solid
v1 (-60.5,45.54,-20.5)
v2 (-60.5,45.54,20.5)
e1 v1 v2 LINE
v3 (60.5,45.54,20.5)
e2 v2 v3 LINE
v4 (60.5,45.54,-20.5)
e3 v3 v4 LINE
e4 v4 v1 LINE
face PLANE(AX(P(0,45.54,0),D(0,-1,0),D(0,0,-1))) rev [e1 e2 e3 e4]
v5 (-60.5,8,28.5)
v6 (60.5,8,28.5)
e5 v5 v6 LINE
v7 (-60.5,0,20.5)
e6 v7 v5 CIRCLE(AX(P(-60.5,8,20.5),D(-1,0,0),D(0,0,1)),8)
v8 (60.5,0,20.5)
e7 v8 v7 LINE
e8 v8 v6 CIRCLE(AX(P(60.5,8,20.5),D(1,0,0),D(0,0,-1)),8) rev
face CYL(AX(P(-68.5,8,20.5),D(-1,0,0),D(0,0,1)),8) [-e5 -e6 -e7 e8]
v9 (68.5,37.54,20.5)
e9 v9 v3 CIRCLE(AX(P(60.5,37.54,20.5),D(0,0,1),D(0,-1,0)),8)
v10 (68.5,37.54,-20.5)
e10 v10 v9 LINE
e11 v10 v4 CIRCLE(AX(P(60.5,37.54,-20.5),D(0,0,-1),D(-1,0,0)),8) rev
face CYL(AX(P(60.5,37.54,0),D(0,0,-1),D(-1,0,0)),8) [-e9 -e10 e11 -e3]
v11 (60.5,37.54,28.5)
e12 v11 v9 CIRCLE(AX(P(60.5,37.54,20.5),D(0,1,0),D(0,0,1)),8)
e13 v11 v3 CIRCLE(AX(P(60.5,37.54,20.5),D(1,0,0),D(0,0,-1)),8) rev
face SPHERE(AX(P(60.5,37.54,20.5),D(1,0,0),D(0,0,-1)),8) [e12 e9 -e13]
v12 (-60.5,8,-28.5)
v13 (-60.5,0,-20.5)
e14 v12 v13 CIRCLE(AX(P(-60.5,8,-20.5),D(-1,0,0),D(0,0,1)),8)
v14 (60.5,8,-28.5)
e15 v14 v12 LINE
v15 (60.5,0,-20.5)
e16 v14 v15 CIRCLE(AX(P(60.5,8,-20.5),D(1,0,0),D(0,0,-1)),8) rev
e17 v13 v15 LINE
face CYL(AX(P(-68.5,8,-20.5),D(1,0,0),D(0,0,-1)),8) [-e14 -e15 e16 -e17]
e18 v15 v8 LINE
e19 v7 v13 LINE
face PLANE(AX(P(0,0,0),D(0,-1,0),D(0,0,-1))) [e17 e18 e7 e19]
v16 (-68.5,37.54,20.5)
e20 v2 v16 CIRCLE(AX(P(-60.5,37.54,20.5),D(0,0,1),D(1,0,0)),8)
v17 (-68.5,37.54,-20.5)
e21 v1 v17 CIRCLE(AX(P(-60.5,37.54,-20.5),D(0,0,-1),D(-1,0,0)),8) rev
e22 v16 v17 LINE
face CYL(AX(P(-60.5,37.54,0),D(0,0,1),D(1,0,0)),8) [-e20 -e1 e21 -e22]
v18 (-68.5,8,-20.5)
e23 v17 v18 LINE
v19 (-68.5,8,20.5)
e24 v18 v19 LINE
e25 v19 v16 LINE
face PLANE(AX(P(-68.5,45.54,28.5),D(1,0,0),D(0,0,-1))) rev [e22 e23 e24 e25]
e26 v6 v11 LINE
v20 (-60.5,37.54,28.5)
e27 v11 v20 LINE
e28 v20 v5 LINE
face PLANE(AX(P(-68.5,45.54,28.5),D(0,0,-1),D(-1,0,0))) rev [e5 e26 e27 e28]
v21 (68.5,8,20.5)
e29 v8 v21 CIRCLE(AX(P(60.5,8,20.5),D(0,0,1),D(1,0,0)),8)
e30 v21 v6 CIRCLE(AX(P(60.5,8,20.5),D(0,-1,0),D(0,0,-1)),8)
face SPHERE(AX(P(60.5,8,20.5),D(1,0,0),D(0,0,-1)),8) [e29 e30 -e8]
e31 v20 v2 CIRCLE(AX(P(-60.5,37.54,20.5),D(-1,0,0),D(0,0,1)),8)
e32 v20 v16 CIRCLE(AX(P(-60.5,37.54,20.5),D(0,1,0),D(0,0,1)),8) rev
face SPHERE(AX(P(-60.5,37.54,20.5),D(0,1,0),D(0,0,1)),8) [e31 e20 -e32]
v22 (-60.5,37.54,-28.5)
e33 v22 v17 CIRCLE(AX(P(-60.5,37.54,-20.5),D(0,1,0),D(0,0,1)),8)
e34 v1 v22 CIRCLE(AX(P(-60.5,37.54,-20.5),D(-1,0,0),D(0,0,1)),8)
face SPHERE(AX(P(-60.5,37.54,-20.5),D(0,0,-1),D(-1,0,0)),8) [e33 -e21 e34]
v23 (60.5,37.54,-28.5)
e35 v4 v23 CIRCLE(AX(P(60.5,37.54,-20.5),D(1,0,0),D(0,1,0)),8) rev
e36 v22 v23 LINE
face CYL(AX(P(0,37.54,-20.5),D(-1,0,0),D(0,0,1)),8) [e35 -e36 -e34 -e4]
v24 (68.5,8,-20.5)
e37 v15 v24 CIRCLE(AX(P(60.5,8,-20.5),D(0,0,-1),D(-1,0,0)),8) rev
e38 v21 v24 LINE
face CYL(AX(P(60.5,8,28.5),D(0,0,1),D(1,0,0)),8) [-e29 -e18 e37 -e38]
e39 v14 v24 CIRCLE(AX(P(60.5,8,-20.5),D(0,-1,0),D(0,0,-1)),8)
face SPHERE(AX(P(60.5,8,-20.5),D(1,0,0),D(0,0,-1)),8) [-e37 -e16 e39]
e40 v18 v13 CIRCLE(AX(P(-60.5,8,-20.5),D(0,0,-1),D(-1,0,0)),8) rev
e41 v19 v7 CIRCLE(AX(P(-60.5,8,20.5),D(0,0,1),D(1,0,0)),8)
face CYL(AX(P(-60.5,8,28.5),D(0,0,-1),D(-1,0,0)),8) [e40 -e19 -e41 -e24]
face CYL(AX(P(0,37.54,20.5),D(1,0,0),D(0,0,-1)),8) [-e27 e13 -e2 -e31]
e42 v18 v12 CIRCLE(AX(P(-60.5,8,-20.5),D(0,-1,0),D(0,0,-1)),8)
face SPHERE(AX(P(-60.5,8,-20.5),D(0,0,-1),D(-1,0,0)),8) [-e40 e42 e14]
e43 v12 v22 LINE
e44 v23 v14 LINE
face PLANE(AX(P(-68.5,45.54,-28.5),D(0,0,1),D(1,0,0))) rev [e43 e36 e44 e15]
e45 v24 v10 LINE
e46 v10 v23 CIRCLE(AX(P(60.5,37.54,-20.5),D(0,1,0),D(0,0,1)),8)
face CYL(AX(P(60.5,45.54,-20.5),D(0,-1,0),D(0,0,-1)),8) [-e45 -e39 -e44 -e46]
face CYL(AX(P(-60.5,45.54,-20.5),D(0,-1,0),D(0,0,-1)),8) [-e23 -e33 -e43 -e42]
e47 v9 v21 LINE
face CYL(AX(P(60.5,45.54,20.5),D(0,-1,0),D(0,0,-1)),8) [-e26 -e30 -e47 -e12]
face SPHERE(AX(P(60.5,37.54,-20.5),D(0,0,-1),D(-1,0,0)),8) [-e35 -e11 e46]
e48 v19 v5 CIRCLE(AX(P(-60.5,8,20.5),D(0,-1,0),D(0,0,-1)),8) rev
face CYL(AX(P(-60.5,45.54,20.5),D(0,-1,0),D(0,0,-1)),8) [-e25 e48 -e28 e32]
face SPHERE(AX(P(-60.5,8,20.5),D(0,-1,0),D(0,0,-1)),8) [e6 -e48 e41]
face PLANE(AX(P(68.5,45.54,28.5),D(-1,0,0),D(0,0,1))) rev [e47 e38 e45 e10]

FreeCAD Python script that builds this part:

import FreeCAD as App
import Part
import Sketcher
Q = App.Units.Quantity


def add_polygon(sketch, points):
    """Adds a closed chain of lines whose ends are joined by coincident constraints."""
    first, n = sketch.GeometryCount, len(points)
    for a, b in zip(points, points[1:] + points[:1]):
        sketch.addGeometry(Part.LineSegment(App.Vector(*a, 0), App.Vector(*b, 0)), False)
    for i in range(n):
        sketch.addConstraint(Sketcher.Constraint("Coincident", first + i, 2, first + (i + 1) % n, 1))

doc = App.newDocument("Part")
body = doc.addObject("PartDesign::Body", "Body")

sketch1 = doc.addObject("Sketcher::SketchObject", "Sketch")
body.addObject(sketch1)
sketch1.AttachmentSupport = (doc.XZ_Plane, [""])
sketch1.MapMode = "FlatFace"
add_polygon(sketch1, [(-68, -28), (-68, 28), (68, 28), (68, -28)])
sketch1.addConstraint([
    Sketcher.Constraint("Vertical", 0),
    Sketcher.Constraint("Horizontal", 1),
    Sketcher.Constraint("Vertical", 2),
    Sketcher.Constraint("Horizontal", 3),
    Sketcher.Constraint("Symmetric", 0, 2, 2, 2, -1, 1),
    Sketcher.Constraint("DistanceX", 1, 1, 1, 2, Q("137 mm")),
    Sketcher.Constraint("DistanceY", 0, 1, 0, 2, Q("57 mm")),
])
pad1 = doc.addObject("PartDesign::Pad", "Pad")
body.addObject(pad1)
pad1.Profile = sketch1
pad1.Length = 45.54
pad1.Reversed = True
doc.recompute()

fillet = doc.addObject("PartDesign::Fillet", "Fillet")
body.addObject(fillet)
fillet.Base = (pad1, ["Edge1"])
fillet.UseAllEdges = True
fillet.Radius = 8

doc.recompute()
